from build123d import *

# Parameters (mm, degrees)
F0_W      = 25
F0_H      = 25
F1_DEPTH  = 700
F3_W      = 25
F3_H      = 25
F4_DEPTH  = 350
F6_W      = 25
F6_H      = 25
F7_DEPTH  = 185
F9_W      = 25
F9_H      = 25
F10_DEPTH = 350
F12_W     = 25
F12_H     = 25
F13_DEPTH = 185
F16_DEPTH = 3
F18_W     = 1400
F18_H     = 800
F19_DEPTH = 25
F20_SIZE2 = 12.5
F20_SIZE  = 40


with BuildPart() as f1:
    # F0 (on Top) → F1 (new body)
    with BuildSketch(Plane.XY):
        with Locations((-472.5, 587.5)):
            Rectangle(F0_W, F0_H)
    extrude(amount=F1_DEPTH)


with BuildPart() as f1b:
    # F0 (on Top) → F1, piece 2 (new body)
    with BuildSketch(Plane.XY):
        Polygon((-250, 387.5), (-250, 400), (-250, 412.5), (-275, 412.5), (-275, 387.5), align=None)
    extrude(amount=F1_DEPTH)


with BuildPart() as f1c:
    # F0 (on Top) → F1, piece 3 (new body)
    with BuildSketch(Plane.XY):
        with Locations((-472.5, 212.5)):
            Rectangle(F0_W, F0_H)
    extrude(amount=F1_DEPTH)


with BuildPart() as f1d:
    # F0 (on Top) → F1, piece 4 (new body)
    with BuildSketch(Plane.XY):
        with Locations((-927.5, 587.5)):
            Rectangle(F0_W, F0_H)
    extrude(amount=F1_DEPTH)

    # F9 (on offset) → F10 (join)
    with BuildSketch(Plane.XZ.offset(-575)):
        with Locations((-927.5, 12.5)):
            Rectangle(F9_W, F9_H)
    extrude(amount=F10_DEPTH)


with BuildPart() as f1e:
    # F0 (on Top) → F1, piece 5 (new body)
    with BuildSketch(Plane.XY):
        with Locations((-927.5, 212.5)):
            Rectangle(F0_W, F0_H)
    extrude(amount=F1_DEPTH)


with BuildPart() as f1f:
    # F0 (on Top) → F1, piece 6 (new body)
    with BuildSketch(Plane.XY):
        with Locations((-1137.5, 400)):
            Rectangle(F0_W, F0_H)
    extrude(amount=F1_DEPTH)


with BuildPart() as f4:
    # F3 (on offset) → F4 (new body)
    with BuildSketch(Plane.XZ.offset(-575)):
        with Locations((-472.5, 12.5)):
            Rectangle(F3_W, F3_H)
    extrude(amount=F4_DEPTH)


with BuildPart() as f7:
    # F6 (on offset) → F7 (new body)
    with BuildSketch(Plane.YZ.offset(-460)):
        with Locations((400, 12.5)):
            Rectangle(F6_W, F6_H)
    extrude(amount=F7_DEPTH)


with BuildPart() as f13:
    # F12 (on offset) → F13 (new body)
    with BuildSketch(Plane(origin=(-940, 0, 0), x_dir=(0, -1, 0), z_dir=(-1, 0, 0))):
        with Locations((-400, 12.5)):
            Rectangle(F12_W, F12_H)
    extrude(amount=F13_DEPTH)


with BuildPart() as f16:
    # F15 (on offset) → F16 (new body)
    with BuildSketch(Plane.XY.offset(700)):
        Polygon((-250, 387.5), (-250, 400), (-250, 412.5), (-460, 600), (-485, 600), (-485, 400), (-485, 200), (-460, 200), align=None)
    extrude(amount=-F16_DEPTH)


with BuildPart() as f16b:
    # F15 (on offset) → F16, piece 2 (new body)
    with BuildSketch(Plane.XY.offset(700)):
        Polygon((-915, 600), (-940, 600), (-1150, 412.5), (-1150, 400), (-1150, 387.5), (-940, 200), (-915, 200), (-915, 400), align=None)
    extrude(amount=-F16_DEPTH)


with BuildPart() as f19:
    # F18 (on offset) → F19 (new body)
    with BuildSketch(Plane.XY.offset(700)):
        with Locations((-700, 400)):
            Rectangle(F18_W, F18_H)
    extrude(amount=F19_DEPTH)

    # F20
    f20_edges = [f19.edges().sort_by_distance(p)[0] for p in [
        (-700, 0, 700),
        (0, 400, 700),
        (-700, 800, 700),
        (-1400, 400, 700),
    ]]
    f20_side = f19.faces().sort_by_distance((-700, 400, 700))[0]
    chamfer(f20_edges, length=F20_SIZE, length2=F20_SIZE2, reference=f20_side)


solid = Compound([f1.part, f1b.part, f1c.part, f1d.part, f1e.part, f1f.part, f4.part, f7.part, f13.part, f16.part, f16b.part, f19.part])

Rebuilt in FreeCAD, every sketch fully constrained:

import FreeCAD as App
import Part
import Sketcher

V = App.Vector


def edges_at(feature, points):
    """Names of the edges that pass closest to the given points."""
    edges = feature.Shape.Edges
    near = lambda p: min(range(len(edges)), key=lambda i: edges[i].distToShape(Part.Vertex(*p))[0])
    return sorted({f"Edge{near(p) + 1}" for p in points})

doc = App.newDocument("Part")
body = doc.addObject("PartDesign::Body", "Body")

# Sketch on XY plane
sketch1 = doc.addObject("Sketcher::SketchObject", "Sketch")
body.addObject(sketch1)
sketch1.AttachmentSupport = (doc.XY_Plane, [""])
sketch1.MapMode = "FlatFace"
sketch1.addGeometry([
    Part.LineSegment(V(-485, 600, 0), V(-485, 575, 0)),
    Part.LineSegment(V(-485, 575, 0), V(-460, 575, 0)),
    Part.LineSegment(V(-460, 575, 0), V(-460, 600, 0)),
    Part.LineSegment(V(-460, 600, 0), V(-485, 600, 0)),
], False)
sketch1.addConstraint([
    Sketcher.Constraint("Coincident", 0, 2, 1, 1),
    Sketcher.Constraint("Coincident", 1, 2, 2, 1),
    Sketcher.Constraint("Coincident", 2, 2, 3, 1),
    Sketcher.Constraint("Coincident", 3, 2, 0, 1),
    Sketcher.Constraint("Vertical", 0),
    Sketcher.Constraint("Horizontal", 1),
    Sketcher.Constraint("Vertical", 2),
    Sketcher.Constraint("Horizontal", 3),
    Sketcher.Constraint("Equal", 3, 0),
    Sketcher.Constraint("DistanceX", 1, 1, 1, 2, 25.0),
    Sketcher.Constraint("DistanceX", 0, 2, -1, 1, 485.0),
    Sketcher.Constraint("DistanceY", -1, 1, 0, 2, 575.0),
])
pad1 = doc.addObject("PartDesign::Pad", "Pad")
body.addObject(pad1)
pad1.Profile = sketch1
pad1.Length = 700
body2 = doc.addObject("PartDesign::Body", "Body001")

# Sketch on XY plane
sketch2 = doc.addObject("Sketcher::SketchObject", "Sketch001")
body2.addObject(sketch2)
sketch2.AttachmentSupport = (doc.getObject("XY_Plane001"), [""])
sketch2.MapMode = "FlatFace"
sketch2.addGeometry([
    Part.LineSegment(V(-250, 388, 0), V(-250, 412, 0)),
    Part.LineSegment(V(-250, 412, 0), V(-275, 412, 0)),
    Part.LineSegment(V(-275, 412, 0), V(-275, 388, 0)),
    Part.LineSegment(V(-275, 388, 0), V(-250, 388, 0)),
], False)
sketch2.addConstraint([
    Sketcher.Constraint("Coincident", 0, 2, 1, 1),
    Sketcher.Constraint("Coincident", 1, 2, 2, 1),
    Sketcher.Constraint("Coincident", 2, 2, 3, 1),
    Sketcher.Constraint("Coincident", 3, 2, 0, 1),
    Sketcher.Constraint("Vertical", 0),
    Sketcher.Constraint("Horizontal", 1),
    Sketcher.Constraint("Vertical", 2),
    Sketcher.Constraint("Horizontal", 3),
    Sketcher.Constraint("Equal", 3, 0),
    Sketcher.Constraint("DistanceX", 1, 2, 1, 1, 25.0),
    Sketcher.Constraint("DistanceX", 0, 2, -1, 1, 250.0),
    Sketcher.Constraint("DistanceY", -1, 1, 0, 2, 412.5),
])
pad2 = doc.addObject("PartDesign::Pad", "Pad001")
body2.addObject(pad2)
pad2.Profile = sketch2
pad2.Length = 700
body3 = doc.addObject("PartDesign::Body", "Body002")

# Sketch on XY plane
sketch3 = doc.addObject("Sketcher::SketchObject", "Sketch002")
body3.addObject(sketch3)
sketch3.AttachmentSupport = (doc.getObject("XY_Plane002"), [""])
sketch3.MapMode = "FlatFace"
sketch3.addGeometry([
    Part.LineSegment(V(-485, 225, 0), V(-485, 200, 0)),
    Part.LineSegment(V(-485, 200, 0), V(-460, 200, 0)),
    Part.LineSegment(V(-460, 200, 0), V(-460, 225, 0)),
    Part.LineSegment(V(-460, 225, 0), V(-485, 225, 0)),
], False)
sketch3.addConstraint([
    Sketcher.Constraint("Coincident", 0, 2, 1, 1),
    Sketcher.Constraint("Coincident", 1, 2, 2, 1),
    Sketcher.Constraint("Coincident", 2, 2, 3, 1),
    Sketcher.Constraint("Coincident", 3, 2, 0, 1),
    Sketcher.Constraint("Vertical", 0),
    Sketcher.Constraint("Horizontal", 1),
    Sketcher.Constraint("Vertical", 2),
    Sketcher.Constraint("Horizontal", 3),
    Sketcher.Constraint("Equal", 3, 0),
    Sketcher.Constraint("DistanceX", 1, 1, 1, 2, 25.0),
    Sketcher.Constraint("DistanceX", 0, 2, -1, 1, 485.0),
    Sketcher.Constraint("DistanceY", -1, 1, 0, 2, 200.0),
])
pad3 = doc.addObject("PartDesign::Pad", "Pad002")
body3.addObject(pad3)
pad3.Profile = sketch3
pad3.Length = 700
body4 = doc.addObject("PartDesign::Body", "Body003")

# Sketch on XY plane
sketch4 = doc.addObject("Sketcher::SketchObject", "Sketch003")
body4.addObject(sketch4)
sketch4.AttachmentSupport = (doc.getObject("XY_Plane003"), [""])
sketch4.MapMode = "FlatFace"
sketch4.addGeometry([
    Part.LineSegment(V(-940, 600, 0), V(-940, 575, 0)),
    Part.LineSegment(V(-940, 575, 0), V(-915, 575, 0)),
    Part.LineSegment(V(-915, 575, 0), V(-915, 600, 0)),
    Part.LineSegment(V(-915, 600, 0), V(-940, 600, 0)),
], False)
sketch4.addConstraint([
    Sketcher.Constraint("Coincident", 0, 2, 1, 1),
    Sketcher.Constraint("Coincident", 1, 2, 2, 1),
    Sketcher.Constraint("Coincident", 2, 2, 3, 1),
    Sketcher.Constraint("Coincident", 3, 2, 0, 1),
    Sketcher.Constraint("Vertical", 0),
    Sketcher.Constraint("Horizontal", 1),
    Sketcher.Constraint("Vertical", 2),
    Sketcher.Constraint("Horizontal", 3),
    Sketcher.Constraint("Equal", 3, 0),
    Sketcher.Constraint("DistanceX", 1, 1, 1, 2, 25.0),
    Sketcher.Constraint("DistanceX", 0, 2, -1, 1, 940.0),
    Sketcher.Constraint("DistanceY", -1, 1, 0, 2, 575.0),
])
pad4 = doc.addObject("PartDesign::Pad", "Pad003")
body4.addObject(pad4)
pad4.Profile = sketch4
pad4.Length = 700

# Sketch on XZ plane
sketch5 = doc.addObject("Sketcher::SketchObject", "Sketch004")
body4.addObject(sketch5)
sketch5.AttachmentSupport = (doc.getObject("XZ_Plane003"), [""])
sketch5.MapMode = "FlatFace"
sketch5.AttachmentOffset = App.Placement(V(0, 0, -575), App.Rotation())
sketch5.addGeometry([
    Part.LineSegment(V(-940, 25, 0), V(-940, 0, 0)),
    Part.LineSegment(V(-940, 0, 0), V(-915, 0, 0)),
    Part.LineSegment(V(-915, 0, 0), V(-915, 25, 0)),
    Part.LineSegment(V(-915, 25, 0), V(-940, 25, 0)),
], False)
sketch5.addConstraint([
    Sketcher.Constraint("Coincident", 0, 2, 1, 1),
    Sketcher.Constraint("Coincident", 1, 2, 2, 1),
    Sketcher.Constraint("Coincident", 2, 2, 3, 1),
    Sketcher.Constraint("Coincident", 3, 2, 0, 1),
    Sketcher.Constraint("Vertical", 0),
    Sketcher.Constraint("Horizontal", 1),
    Sketcher.Constraint("Vertical", 2),
    Sketcher.Constraint("Horizontal", 3),
    Sketcher.Constraint("PointOnObject", 0, 2, -1),
    Sketcher.Constraint("Equal", 3, 0),
    Sketcher.Constraint("DistanceX", 1, 1, 1, 2, 25.0),
    Sketcher.Constraint("DistanceX", 0, 2, -1, 1, 940.0),
])
pad5 = doc.addObject("PartDesign::Pad", "Pad004")
body4.addObject(pad5)
pad5.Profile = sketch5
pad5.Length = 350
body5 = doc.addObject("PartDesign::Body", "Body004")

# Sketch on XY plane
sketch6 = doc.addObject("Sketcher::SketchObject", "Sketch005")
body5.addObject(sketch6)
sketch6.AttachmentSupport = (doc.getObject("XY_Plane004"), [""])
sketch6.MapMode = "FlatFace"
sketch6.addGeometry([
    Part.LineSegment(V(-940, 225, 0), V(-940, 200, 0)),
    Part.LineSegment(V(-940, 200, 0), V(-915, 200, 0)),
    Part.LineSegment(V(-915, 200, 0), V(-915, 225, 0)),
    Part.LineSegment(V(-915, 225, 0), V(-940, 225, 0)),
], False)
sketch6.addConstraint([
    Sketcher.Constraint("Coincident", 0, 2, 1, 1),
    Sketcher.Constraint("Coincident", 1, 2, 2, 1),
    Sketcher.Constraint("Coincident", 2, 2, 3, 1),
    Sketcher.Constraint("Coincident", 3, 2, 0, 1),
    Sketcher.Constraint("Vertical", 0),
    Sketcher.Constraint("Horizontal", 1),
    Sketcher.Constraint("Vertical", 2),
    Sketcher.Constraint("Horizontal", 3),
    Sketcher.Constraint("Equal", 3, 0),
    Sketcher.Constraint("DistanceX", 1, 1, 1, 2, 25.0),
    Sketcher.Constraint("DistanceX", 0, 2, -1, 1, 940.0),
    Sketcher.Constraint("DistanceY", -1, 1, 0, 2, 200.0),
])
pad6 = doc.addObject("PartDesign::Pad", "Pad005")
body5.addObject(pad6)
pad6.Profile = sketch6
pad6.Length = 700
body6 = doc.addObject("PartDesign::Body", "Body005")

# Sketch on XY plane
sketch7 = doc.addObject("Sketcher::SketchObject", "Sketch006")
body6.addObject(sketch7)
sketch7.AttachmentSupport = (doc.getObject("XY_Plane005"), [""])
sketch7.MapMode = "FlatFace"
sketch7.addGeometry([
    Part.LineSegment(V(-1150, 412, 0), V(-1150, 388, 0)),
    Part.LineSegment(V(-1150, 388, 0), V(-1125, 388, 0)),
    Part.LineSegment(V(-1125, 388, 0), V(-1125, 412, 0)),
    Part.LineSegment(V(-1125, 412, 0), V(-1150, 412, 0)),
], False)
sketch7.addConstraint([
    Sketcher.Constraint("Coincident", 0, 2, 1, 1),
    Sketcher.Constraint("Coincident", 1, 2, 2, 1),
    Sketcher.Constraint("Coincident", 2, 2, 3, 1),
    Sketcher.Constraint("Coincident", 3, 2, 0, 1),
    Sketcher.Constraint("Vertical", 0),
    Sketcher.Constraint("Horizontal", 1),
    Sketcher.Constraint("Vertical", 2),
    Sketcher.Constraint("Horizontal", 3),
    Sketcher.Constraint("Equal", 3, 0),
    Sketcher.Constraint("DistanceX", 1, 1, 1, 2, 25.0),
    Sketcher.Constraint("DistanceX", 0, 2, -1, 1, 1150.0),
    Sketcher.Constraint("DistanceY", -1, 1, 0, 2, 387.5),
])
pad7 = doc.addObject("PartDesign::Pad", "Pad006")
body6.addObject(pad7)
pad7.Profile = sketch7
pad7.Length = 700
body7 = doc.addObject("PartDesign::Body", "Body006")

# Sketch on XZ plane
sketch8 = doc.addObject("Sketcher::SketchObject", "Sketch007")
body7.addObject(sketch8)
sketch8.AttachmentSupport = (doc.getObject("XZ_Plane006"), [""])
sketch8.MapMode = "FlatFace"
sketch8.AttachmentOffset = App.Placement(V(0, 0, -575), App.Rotation())
sketch8.addGeometry([
    Part.LineSegment(V(-485, 25, 0), V(-485, 0, 0)),
    Part.LineSegment(V(-485, 0, 0), V(-460, 0, 0)),
    Part.LineSegment(V(-460, 0, 0), V(-460, 25, 0)),
    Part.LineSegment(V(-460, 25, 0), V(-485, 25, 0)),
], False)
sketch8.addConstraint([
    Sketcher.Constraint("Coincident", 0, 2, 1, 1),
    Sketcher.Constraint("Coincident", 1, 2, 2, 1),
    Sketcher.Constraint("Coincident", 2, 2, 3, 1),
    Sketcher.Constraint("Coincident", 3, 2, 0, 1),
    Sketcher.Constraint("Vertical", 0),
    Sketcher.Constraint("Horizontal", 1),
    Sketcher.Constraint("Vertical", 2),
    Sketcher.Constraint("Horizontal", 3),
    Sketcher.Constraint("PointOnObject", 0, 2, -1),
    Sketcher.Constraint("Equal", 3, 0),
    Sketcher.Constraint("DistanceX", 1, 1, 1, 2, 25.0),
    Sketcher.Constraint("DistanceX", 0, 2, -1, 1, 485.0),
])
pad8 = doc.addObject("PartDesign::Pad", "Pad007")
body7.addObject(pad8)
pad8.Profile = sketch8
pad8.Length = 350
body8 = doc.addObject("PartDesign::Body", "Body007")

# Sketch on YZ plane
sketch9 = doc.addObject("Sketcher::SketchObject", "Sketch008")
body8.addObject(sketch9)
sketch9.AttachmentSupport = (doc.getObject("YZ_Plane007"), [""])
sketch9.MapMode = "FlatFace"
sketch9.AttachmentOffset = App.Placement(V(0, 0, -460), App.Rotation())
sketch9.addGeometry([
    Part.LineSegment(V(388, 25, 0), V(388, 0, 0)),
    Part.LineSegment(V(388, 0, 0), V(412, 0, 0)),
    Part.LineSegment(V(412, 0, 0), V(412, 25, 0)),
    Part.LineSegment(V(412, 25, 0), V(388, 25, 0)),
], False)
sketch9.addConstraint([
    Sketcher.Constraint("Coincident", 0, 2, 1, 1),
    Sketcher.Constraint("Coincident", 1, 2, 2, 1),
    Sketcher.Constraint("Coincident", 2, 2, 3, 1),
    Sketcher.Constraint("Coincident", 3, 2, 0, 1),
    Sketcher.Constraint("Vertical", 0),
    Sketcher.Constraint("Horizontal", 1),
    Sketcher.Constraint("Vertical", 2),
    Sketcher.Constraint("Horizontal", 3),
    Sketcher.Constraint("PointOnObject", 0, 2, -1),
    Sketcher.Constraint("Equal", 3, 0),
    Sketcher.Constraint("DistanceX", 1, 1, 1, 2, 25.0),
    Sketcher.Constraint("DistanceX", -1, 1, 0, 2, 387.5),
])
pad9 = doc.addObject("PartDesign::Pad", "Pad008")
body8.addObject(pad9)
pad9.Profile = sketch9
pad9.Length = 185
body9 = doc.addObject("PartDesign::Body", "Body008")

# Sketch on YZ plane
sketch10 = doc.addObject("Sketcher::SketchObject", "Sketch009")
body9.addObject(sketch10)
sketch10.AttachmentSupport = (doc.getObject("YZ_Plane008"), [""])
sketch10.MapMode = "FlatFace"
sketch10.AttachmentOffset = App.Placement(V(0, 0, -940), App.Rotation())
sketch10.addGeometry([
    Part.LineSegment(V(412, 25, 0), V(412, 0, 0)),
    Part.LineSegment(V(412, 0, 0), V(388, 0, 0)),
    Part.LineSegment(V(388, 0, 0), V(388, 25, 0)),
    Part.LineSegment(V(388, 25, 0), V(412, 25, 0)),
], False)
sketch10.addConstraint([
    Sketcher.Constraint("Coincident", 0, 2, 1, 1),
    Sketcher.Constraint("Coincident", 1, 2, 2, 1),
    Sketcher.Constraint("Coincident", 2, 2, 3, 1),
    Sketcher.Constraint("Coincident", 3, 2, 0, 1),
    Sketcher.Constraint("Vertical", 0),
    Sketcher.Constraint("Horizontal", 1),
    Sketcher.Constraint("Vertical", 2),
    Sketcher.Constraint("Horizontal", 3),
    Sketcher.Constraint("PointOnObject", 0, 2, -1),
    Sketcher.Constraint("Equal", 3, 0),
    Sketcher.Constraint("DistanceX", 1, 2, 1, 1, 25.0),
    Sketcher.Constraint("DistanceX", -1, 1, 0, 2, 412.5),
])
pad10 = doc.addObject("PartDesign::Pad", "Pad009")
body9.addObject(pad10)
pad10.Profile = sketch10
pad10.Length = 185
pad10.Reversed = True
body10 = doc.addObject("PartDesign::Body", "Body009")

# Sketch on XY plane
sketch11 = doc.addObject("Sketcher::SketchObject", "Sketch010")
body10.addObject(sketch11)
sketch11.AttachmentSupport = (doc.getObject("XY_Plane009"), [""])
sketch11.MapMode = "FlatFace"
sketch11.AttachmentOffset = App.Placement(V(0, 0, 700), App.Rotation())
sketch11.addGeometry([
    Part.LineSegment(V(-250, 388, 0), V(-250, 412, 0)),  # 0
    Part.LineSegment(V(-250, 412, 0), V(-460, 600, 0)),  # 1
    Part.LineSegment(V(-460, 600, 0), V(-485, 600, 0)),  # 2
    Part.LineSegment(V(-485, 600, 0), V(-485, 200, 0)),  # 3
    Part.LineSegment(V(-485, 200, 0), V(-460, 200, 0)),  # 4
    Part.LineSegment(V(-460, 200, 0), V(-250, 388, 0)),  # 5
], False)
sketch11.addConstraint([
    Sketcher.Constraint("Coincident", 0, 2, 1, 1),
    Sketcher.Constraint("Coincident", 1, 2, 2, 1),
    Sketcher.Constraint("Coincident", 2, 2, 3, 1),
    Sketcher.Constraint("Coincident", 3, 2, 4, 1),
    Sketcher.Constraint("Coincident", 4, 2, 5, 1),
    Sketcher.Constraint("Coincident", 5, 2, 0, 1),
    Sketcher.Constraint("Vertical", 0),
    Sketcher.Constraint("Horizontal", 2),
    Sketcher.Constraint("Vertical", 3),
    Sketcher.Constraint("Horizontal", 4),
    Sketcher.Constraint("Vertical", 1, 2, 4, 2),
    Sketcher.Constraint("Equal", 4, 0),
    Sketcher.Constraint("Equal", 1, 5),
    Sketcher.Constraint("DistanceX", 2, 2, 2, 1, 25.0),
    Sketcher.Constraint("DistanceY", 3, 2, 3, 1, 400.0),
    Sketcher.Constraint("DistanceX", 0, 2, -1, 1, 250.0),
    Sketcher.Constraint("DistanceX", 1, 2, -1, 1, 460.0),
    Sketcher.Constraint("DistanceY", -1, 1, 1, 2, 600.0),
])
pad11 = doc.addObject("PartDesign::Pad", "Pad010")
body10.addObject(pad11)
pad11.Profile = sketch11
pad11.Length = 3
pad11.Reversed = True
body11 = doc.addObject("PartDesign::Body", "Body010")

# Sketch on XY plane
sketch12 = doc.addObject("Sketcher::SketchObject", "Sketch011")
body11.addObject(sketch12)
sketch12.AttachmentSupport = (doc.getObject("XY_Plane010"), [""])
sketch12.MapMode = "FlatFace"
sketch12.AttachmentOffset = App.Placement(V(0, 0, 700), App.Rotation())
sketch12.addGeometry([
    Part.LineSegment(V(-915, 600, 0), V(-940, 600, 0)),  # 0
    Part.LineSegment(V(-940, 600, 0), V(-1150, 412, 0)),  # 1
    Part.LineSegment(V(-1150, 412, 0), V(-1150, 388, 0)),  # 2
    Part.LineSegment(V(-1150, 388, 0), V(-940, 200, 0)),  # 3
    Part.LineSegment(V(-940, 200, 0), V(-915, 200, 0)),  # 4
    Part.LineSegment(V(-915, 200, 0), V(-915, 600, 0)),  # 5
], False)
sketch12.addConstraint([
    Sketcher.Constraint("Coincident", 0, 2, 1, 1),
    Sketcher.Constraint("Coincident", 1, 2, 2, 1),
    Sketcher.Constraint("Coincident", 2, 2, 3, 1),
    Sketcher.Constraint("Coincident", 3, 2, 4, 1),
    Sketcher.Constraint("Coincident", 4, 2, 5, 1),
    Sketcher.Constraint("Coincident", 5, 2, 0, 1),
    Sketcher.Constraint("Horizontal", 0),
    Sketcher.Constraint("Vertical", 2),
    Sketcher.Constraint("Horizontal", 4),
    Sketcher.Constraint("Vertical", 5),
    Sketcher.Constraint("Vertical", 0, 2, 3, 2),
    Sketcher.Constraint("Equal", 4, 2),
    Sketcher.Constraint("Equal", 1, 3),
    Sketcher.Constraint("DistanceX", 0, 2, 0, 1, 25.0),
    Sketcher.Constraint("DistanceY", 5, 1, 5, 2, 400.0),
    Sketcher.Constraint("DistanceX", 0, 2, -1, 1, 940.0),
    Sketcher.Constraint("DistanceY", -1, 1, 0, 2, 600.0),
    Sketcher.Constraint("DistanceX", 1, 2, -1, 1, 1150.0),
])
pad12 = doc.addObject("PartDesign::Pad", "Pad011")
body11.addObject(pad12)
pad12.Profile = sketch12
pad12.Length = 3
pad12.Reversed = True
body12 = doc.addObject("PartDesign::Body", "Body011")

# Sketch on XY plane
sketch13 = doc.addObject("Sketcher::SketchObject", "Sketch012")
body12.addObject(sketch13)
sketch13.AttachmentSupport = (doc.getObject("XY_Plane011"), [""])
sketch13.MapMode = "FlatFace"
sketch13.AttachmentOffset = App.Placement(V(0, 0, 700), App.Rotation())
sketch13.addGeometry([
    Part.LineSegment(V(-1400, 800, 0), V(-1400, 0, 0)),
    Part.LineSegment(V(-1400, 0, 0), V(0, 0, 0)),
    Part.LineSegment(V(0, 0, 0), V(0, 800, 0)),
    Part.LineSegment(V(0, 800, 0), V(-1400, 800, 0)),
], False)
sketch13.addConstraint([
    Sketcher.Constraint("Coincident", 0, 2, 1, 1),
    Sketcher.Constraint("Coincident", 1, 2, 2, 1),
    Sketcher.Constraint("Coincident", 2, 2, 3, 1),
    Sketcher.Constraint("Coincident", 3, 2, 0, 1),
    Sketcher.Constraint("Vertical", 0),
    Sketcher.Constraint("Horizontal", 1),
    Sketcher.Constraint("Vertical", 2),
    Sketcher.Constraint("Horizontal", 3),
    Sketcher.Constraint("Coincident", 1, 2, -1, 1),
    Sketcher.Constraint("DistanceX", 1, 1, 1, 2, 1400.0),
    Sketcher.Constraint("DistanceY", 0, 2, 0, 1, 800.0),
])
pad13 = doc.addObject("PartDesign::Pad", "Pad012")
body12.addObject(pad13)
pad13.Profile = sketch13
pad13.Length = 25
doc.recompute()

chamfer = doc.addObject("PartDesign::Chamfer", "Chamfer")
body12.addObject(chamfer)
chamfer.Base = (pad13, edges_at(pad13, [
    (-700, 0, 700),
    (0, 400, 700),
    (-700, 800, 700),
    (-1400, 400, 700),
]))
chamfer.ChamferType = "Two distances"
chamfer.Size = 40
chamfer.Size2 = 12.5
chamfer.FlipDirection = True

doc.recompute()
